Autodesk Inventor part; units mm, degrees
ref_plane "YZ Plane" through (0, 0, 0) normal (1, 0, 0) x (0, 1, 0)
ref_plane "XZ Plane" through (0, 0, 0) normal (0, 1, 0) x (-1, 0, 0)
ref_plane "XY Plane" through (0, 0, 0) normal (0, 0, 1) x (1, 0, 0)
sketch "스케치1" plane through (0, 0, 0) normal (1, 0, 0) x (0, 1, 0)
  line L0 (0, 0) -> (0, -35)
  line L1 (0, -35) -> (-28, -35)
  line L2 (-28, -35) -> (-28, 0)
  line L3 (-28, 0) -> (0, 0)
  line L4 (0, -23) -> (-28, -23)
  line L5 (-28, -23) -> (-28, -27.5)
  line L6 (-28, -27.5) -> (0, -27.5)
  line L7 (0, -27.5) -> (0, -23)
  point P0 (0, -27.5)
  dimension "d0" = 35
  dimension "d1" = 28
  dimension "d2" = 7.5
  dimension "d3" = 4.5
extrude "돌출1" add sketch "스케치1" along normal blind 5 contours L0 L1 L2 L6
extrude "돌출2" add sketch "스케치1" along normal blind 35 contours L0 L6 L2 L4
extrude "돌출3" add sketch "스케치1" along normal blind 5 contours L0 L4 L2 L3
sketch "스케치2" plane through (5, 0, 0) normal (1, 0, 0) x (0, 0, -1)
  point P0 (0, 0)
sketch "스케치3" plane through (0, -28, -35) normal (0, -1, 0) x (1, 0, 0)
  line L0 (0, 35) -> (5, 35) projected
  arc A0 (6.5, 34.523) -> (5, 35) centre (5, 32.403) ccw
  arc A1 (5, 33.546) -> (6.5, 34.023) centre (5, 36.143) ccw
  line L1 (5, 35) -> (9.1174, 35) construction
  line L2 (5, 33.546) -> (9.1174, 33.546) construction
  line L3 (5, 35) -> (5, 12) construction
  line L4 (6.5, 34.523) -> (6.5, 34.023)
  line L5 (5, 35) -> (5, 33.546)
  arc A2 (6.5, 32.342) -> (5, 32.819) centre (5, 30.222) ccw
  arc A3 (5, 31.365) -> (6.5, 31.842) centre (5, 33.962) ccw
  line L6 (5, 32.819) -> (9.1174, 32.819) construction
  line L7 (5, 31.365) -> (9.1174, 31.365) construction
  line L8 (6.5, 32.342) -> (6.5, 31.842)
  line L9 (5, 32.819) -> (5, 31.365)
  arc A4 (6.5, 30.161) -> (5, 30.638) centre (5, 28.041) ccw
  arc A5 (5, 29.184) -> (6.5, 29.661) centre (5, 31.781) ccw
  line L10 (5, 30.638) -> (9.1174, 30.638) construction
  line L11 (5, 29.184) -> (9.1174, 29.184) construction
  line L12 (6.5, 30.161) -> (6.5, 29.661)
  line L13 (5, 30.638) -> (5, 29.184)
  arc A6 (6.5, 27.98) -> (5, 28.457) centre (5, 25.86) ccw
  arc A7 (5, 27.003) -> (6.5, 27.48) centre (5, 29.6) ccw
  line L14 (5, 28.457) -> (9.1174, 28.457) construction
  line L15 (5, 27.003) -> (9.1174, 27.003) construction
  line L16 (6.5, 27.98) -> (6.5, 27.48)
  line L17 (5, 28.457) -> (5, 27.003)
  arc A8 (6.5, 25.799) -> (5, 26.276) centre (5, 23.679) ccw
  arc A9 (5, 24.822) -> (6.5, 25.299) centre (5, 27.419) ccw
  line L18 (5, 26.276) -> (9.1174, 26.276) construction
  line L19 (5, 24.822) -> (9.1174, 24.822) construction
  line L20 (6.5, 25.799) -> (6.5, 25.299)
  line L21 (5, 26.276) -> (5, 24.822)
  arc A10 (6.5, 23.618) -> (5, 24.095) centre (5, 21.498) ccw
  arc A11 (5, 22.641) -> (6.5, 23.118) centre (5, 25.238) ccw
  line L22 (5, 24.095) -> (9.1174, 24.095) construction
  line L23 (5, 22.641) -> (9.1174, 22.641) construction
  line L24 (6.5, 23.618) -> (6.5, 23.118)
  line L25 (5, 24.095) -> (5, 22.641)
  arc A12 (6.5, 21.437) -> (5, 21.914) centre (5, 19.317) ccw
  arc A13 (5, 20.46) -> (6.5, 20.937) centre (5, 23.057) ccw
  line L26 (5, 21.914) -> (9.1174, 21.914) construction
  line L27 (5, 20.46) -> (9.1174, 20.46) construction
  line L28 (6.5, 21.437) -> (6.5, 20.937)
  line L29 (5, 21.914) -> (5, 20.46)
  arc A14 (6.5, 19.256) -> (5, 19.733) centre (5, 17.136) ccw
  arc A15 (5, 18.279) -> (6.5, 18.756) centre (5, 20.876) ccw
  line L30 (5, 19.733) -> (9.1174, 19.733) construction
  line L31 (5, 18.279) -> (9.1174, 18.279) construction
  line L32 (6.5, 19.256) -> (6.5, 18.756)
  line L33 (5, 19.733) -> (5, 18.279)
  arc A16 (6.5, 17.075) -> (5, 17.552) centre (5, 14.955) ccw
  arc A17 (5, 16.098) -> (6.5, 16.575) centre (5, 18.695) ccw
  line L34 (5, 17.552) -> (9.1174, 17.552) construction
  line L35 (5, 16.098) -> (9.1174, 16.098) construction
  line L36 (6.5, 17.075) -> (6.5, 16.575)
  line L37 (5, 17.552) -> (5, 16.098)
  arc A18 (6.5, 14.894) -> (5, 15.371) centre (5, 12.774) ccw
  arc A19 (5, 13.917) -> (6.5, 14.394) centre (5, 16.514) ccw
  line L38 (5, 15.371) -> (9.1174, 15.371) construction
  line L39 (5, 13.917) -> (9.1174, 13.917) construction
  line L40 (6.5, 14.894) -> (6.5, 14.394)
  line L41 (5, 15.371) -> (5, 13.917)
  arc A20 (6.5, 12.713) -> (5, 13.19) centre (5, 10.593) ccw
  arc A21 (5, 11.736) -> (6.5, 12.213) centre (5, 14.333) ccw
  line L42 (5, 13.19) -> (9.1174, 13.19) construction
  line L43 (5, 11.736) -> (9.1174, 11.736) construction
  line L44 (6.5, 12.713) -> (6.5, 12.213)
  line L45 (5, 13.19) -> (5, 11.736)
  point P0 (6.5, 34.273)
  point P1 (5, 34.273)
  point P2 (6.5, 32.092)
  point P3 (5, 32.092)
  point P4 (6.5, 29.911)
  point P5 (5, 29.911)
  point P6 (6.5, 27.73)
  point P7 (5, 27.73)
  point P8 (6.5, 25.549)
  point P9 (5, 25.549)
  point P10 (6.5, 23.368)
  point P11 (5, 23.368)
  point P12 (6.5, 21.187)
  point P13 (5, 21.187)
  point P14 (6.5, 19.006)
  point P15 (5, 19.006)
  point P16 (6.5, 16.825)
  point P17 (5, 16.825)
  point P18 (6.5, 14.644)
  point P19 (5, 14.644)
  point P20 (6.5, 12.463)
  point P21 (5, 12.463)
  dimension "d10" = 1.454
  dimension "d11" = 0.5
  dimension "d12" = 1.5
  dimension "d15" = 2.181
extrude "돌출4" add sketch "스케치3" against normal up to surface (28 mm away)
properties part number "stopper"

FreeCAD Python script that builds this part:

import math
import FreeCAD as App
import Part
import Sketcher

V = App.Vector
Q = App.Units.Quantity

doc = App.newDocument("Part")
params = doc.addObject("Spreadsheet::Sheet", "Params")
for row, (alias, value) in enumerate([
    ("sketch1_width", "28 mm"),
    ("sketch1_height", "7.5 mm"),
    ("pad1_length", "5 mm"),
    ("sketch2_width", "28 mm"),
    ("sketch2_height", "4.5 mm"),
    ("pad2_length", "35 mm"),
    ("sketch3_width", "28 mm"),
    ("sketch3_height", "23 mm"),
    ("pad3_length", "5 mm"),
    ("sketch4_height", "0.5 mm"),
    ("pad4_length", "28 mm"),
], start=1):
    params.set(f"A{row}", alias)
    params.set(f"B{row}", "=" + value)
    params.setAlias(f"B{row}", alias)

body = doc.addObject("PartDesign::Body", "Body")

sketch1 = doc.addObject("Sketcher::SketchObject", "Sketch")
body.addObject(sketch1)
sketch1.AttachmentSupport = (doc.YZ_Plane, [""])
sketch1.MapMode = "FlatFace"
sketch1.addGeometry([
    Part.LineSegment(V(0, -35, 0), V(0, -27.5, 0)),
    Part.LineSegment(V(0, -27.5, 0), V(-28, -27.5, 0)),
    Part.LineSegment(V(-28, -27.5, 0), V(-28, -35, 0)),
    Part.LineSegment(V(-28, -35, 0), V(0, -35, 0)),
], False)
sketch1.addConstraint([
    Sketcher.Constraint("Coincident", 0, 2, 1, 1),
    Sketcher.Constraint("Coincident", 1, 2, 2, 1),
    Sketcher.Constraint("Coincident", 2, 2, 3, 1),
    Sketcher.Constraint("Coincident", 3, 2, 0, 1),
    Sketcher.Constraint("Vertical", 0),
    Sketcher.Constraint("Horizontal", 1),
    Sketcher.Constraint("Vertical", 2),
    Sketcher.Constraint("Horizontal", 3),
    Sketcher.Constraint("PointOnObject", 0, 2, -2),
    Sketcher.Constraint("DistanceX", 1, 2, 1, 1, Q("28 mm")),
    Sketcher.Constraint("DistanceY", 0, 1, 0, 2, Q("7.5 mm")),
    Sketcher.Constraint("DistanceY", 2, 2, -1, 1, Q("35 mm")),
])
sketch1.setExpression("Constraints[9]", "Params.sketch1_width")
sketch1.setExpression("Constraints[10]", "Params.sketch1_height")
pad1 = doc.addObject("PartDesign::Pad", "Pad")
body.addObject(pad1)
pad1.Profile = sketch1
pad1.setExpression("Length", "Params.pad1_length")

sketch2 = doc.addObject("Sketcher::SketchObject", "Sketch001")
body.addObject(sketch2)
sketch2.AttachmentSupport = (doc.YZ_Plane, [""])
sketch2.MapMode = "FlatFace"
sketch2.addGeometry([
    Part.LineSegment(V(0, -27.5, 0), V(0, -23, 0)),
    Part.LineSegment(V(0, -23, 0), V(-28, -23, 0)),
    Part.LineSegment(V(-28, -23, 0), V(-28, -27.5, 0)),
    Part.LineSegment(V(-28, -27.5, 0), V(0, -27.5, 0)),
], False)
sketch2.addConstraint([
    Sketcher.Constraint("Coincident", 0, 2, 1, 1),
    Sketcher.Constraint("Coincident", 1, 2, 2, 1),
    Sketcher.Constraint("Coincident", 2, 2, 3, 1),
    Sketcher.Constraint("Coincident", 3, 2, 0, 1),
    Sketcher.Constraint("Vertical", 0),
    Sketcher.Constraint("Horizontal", 1),
    Sketcher.Constraint("Vertical", 2),
    Sketcher.Constraint("Horizontal", 3),
    Sketcher.Constraint("PointOnObject", 0, 2, -2),
    Sketcher.Constraint("DistanceX", 1, 2, 1, 1, Q("28 mm")),
    Sketcher.Constraint("DistanceY", 0, 1, 0, 2, Q("4.5 mm")),
    Sketcher.Constraint("DistanceY", 0, 2, -1, 1, Q("23 mm")),
])
sketch2.setExpression("Constraints[9]", "Params.sketch2_width")
sketch2.setExpression("Constraints[10]", "Params.sketch2_height")
pad2 = doc.addObject("PartDesign::Pad", "Pad001")
body.addObject(pad2)
pad2.Profile = sketch2
pad2.setExpression("Length", "Params.pad2_length")

sketch3 = doc.addObject("Sketcher::SketchObject", "Sketch002")
body.addObject(sketch3)
sketch3.AttachmentSupport = (doc.YZ_Plane, [""])
sketch3.MapMode = "FlatFace"
sketch3.addGeometry([
    Part.LineSegment(V(0, -23, 0), V(0, 0, 0)),
    Part.LineSegment(V(0, 0, 0), V(-28, 0, 0)),
    Part.LineSegment(V(-28, 0, 0), V(-28, -23, 0)),
    Part.LineSegment(V(-28, -23, 0), V(0, -23, 0)),
], False)
sketch3.addConstraint([
    Sketcher.Constraint("Coincident", 0, 2, 1, 1),
    Sketcher.Constraint("Coincident", 1, 2, 2, 1),
    Sketcher.Constraint("Coincident", 2, 2, 3, 1),
    Sketcher.Constraint("Coincident", 3, 2, 0, 1),
    Sketcher.Constraint("Vertical", 0),
    Sketcher.Constraint("Horizontal", 1),
    Sketcher.Constraint("Vertical", 2),
    Sketcher.Constraint("Horizontal", 3),
    Sketcher.Constraint("Coincident", 0, 2, -1, 1),
    Sketcher.Constraint("DistanceX", 1, 2, 1, 1, Q("28 mm")),
    Sketcher.Constraint("DistanceY", 0, 1, 0, 2, Q("23 mm")),
])
sketch3.setExpression("Constraints[9]", "Params.sketch3_width")
sketch3.setExpression("Constraints[10]", "Params.sketch3_height")
pad3 = doc.addObject("PartDesign::Pad", "Pad002")
body.addObject(pad3)
pad3.Profile = sketch3
pad3.setExpression("Length", "Params.pad3_length")

sketch4 = doc.addObject("Sketcher::SketchObject", "Sketch003")
body.addObject(sketch4)
sketch4.AttachmentSupport = (doc.XZ_Plane, [""])
sketch4.MapMode = "FlatFace"
sketch4.AttachmentOffset = App.Placement(V(0, 0, 28), App.Rotation())
sketch4.addGeometry([
    Part.LineSegment(V(6.5, -0.977, 0), V(6.5, -0.477, 0)),
    Part.ArcOfCircle(Part.Circle(V(5, -2.597, 0), V(0, 0, 1), 2.596998), math.radians(54.718792), math.radians(90)),
    Part.LineSegment(V(5, 0, 0), V(5, -1.454, 0)),
    Part.ArcOfCircle(Part.Circle(V(5, 1.143, 0), V(0, 0, 1), 2.597), math.radians(-90), math.radians(-54.718792)),
    Part.LineSegment(V(6.5, -3.158, 0), V(6.5, -2.658, 0)),
    Part.ArcOfCircle(Part.Circle(V(5, -4.778, 0), V(0, 0, 1), 2.596998), math.radians(54.718792), math.radians(90)),
    Part.LineSegment(V(5, -2.181, 0), V(5, -3.635, 0)),
    Part.ArcOfCircle(Part.Circle(V(5, -1.038, 0), V(0, 0, 1), 2.597), math.radians(-90), math.radians(-54.718792)),
    Part.LineSegment(V(6.5, -5.339, 0), V(6.5, -4.839, 0)),
    Part.ArcOfCircle(Part.Circle(V(5, -6.959, 0), V(0, 0, 1), 2.596998), math.radians(54.718792), math.radians(90)),
    Part.LineSegment(V(5, -4.362, 0), V(5, -5.816, 0)),
    Part.ArcOfCircle(Part.Circle(V(5, -3.219, 0), V(0, 0, 1), 2.597), math.radians(-90), math.radians(-54.718792)),
    Part.LineSegment(V(6.5, -7.52, 0), V(6.5, -7.02, 0)),
    Part.ArcOfCircle(Part.Circle(V(5, -9.14, 0), V(0, 0, 1), 2.596998), math.radians(54.718792), math.radians(90)),
    Part.LineSegment(V(5, -6.543, 0), V(5, -7.997, 0)),
    Part.ArcOfCircle(Part.Circle(V(5, -5.4, 0), V(0, 0, 1), 2.597), math.radians(-90), math.radians(-54.718792)),
    Part.LineSegment(V(6.5, -9.701, 0), V(6.5, -9.201, 0)),
    Part.ArcOfCircle(Part.Circle(V(5, -11.321, 0), V(0, 0, 1), 2.596998), math.radians(54.718792), math.radians(90)),
    Part.LineSegment(V(5, -8.724, 0), V(5, -10.178, 0)),
    Part.ArcOfCircle(Part.Circle(V(5, -7.581, 0), V(0, 0, 1), 2.597), math.radians(-90), math.radians(-54.718792)),
    Part.LineSegment(V(6.5, -11.882, 0), V(6.5, -11.382, 0)),
    Part.ArcOfCircle(Part.Circle(V(5, -13.502, 0), V(0, 0, 1), 2.596998), math.radians(54.718792), math.radians(90)),
    Part.LineSegment(V(5, -10.905, 0), V(5, -12.359, 0)),
    Part.ArcOfCircle(Part.Circle(V(5, -9.762, 0), V(0, 0, 1), 2.597), math.radians(-90), math.radians(-54.718792)),
    Part.LineSegment(V(6.5, -14.063, 0), V(6.5, -13.563, 0)),
    Part.ArcOfCircle(Part.Circle(V(5, -15.683, 0), V(0, 0, 1), 2.596998), math.radians(54.718792), math.radians(90)),
    Part.LineSegment(V(5, -13.086, 0), V(5, -14.54, 0)),
    Part.ArcOfCircle(Part.Circle(V(5, -11.943, 0), V(0, 0, 1), 2.597), math.radians(-90), math.radians(-54.718792)),
    Part.LineSegment(V(6.5, -16.244, 0), V(6.5, -15.744, 0)),
    Part.ArcOfCircle(Part.Circle(V(5, -17.864, 0), V(0, 0, 1), 2.596998), math.radians(54.718792), math.radians(90)),
    Part.LineSegment(V(5, -15.267, 0), V(5, -16.721, 0)),
    Part.ArcOfCircle(Part.Circle(V(5, -14.124, 0), V(0, 0, 1), 2.597), math.radians(-90), math.radians(-54.718792)),
    Part.LineSegment(V(6.5, -18.425, 0), V(6.5, -17.925, 0)),
    Part.ArcOfCircle(Part.Circle(V(5, -20.045, 0), V(0, 0, 1), 2.596998), math.radians(54.718792), math.radians(90)),
    Part.LineSegment(V(5, -17.448, 0), V(5, -18.902, 0)),
    Part.ArcOfCircle(Part.Circle(V(5, -16.305, 0), V(0, 0, 1), 2.597), math.radians(-90), math.radians(-54.718792)),
    Part.LineSegment(V(6.5, -20.606, 0), V(6.5, -20.106, 0)),
    Part.ArcOfCircle(Part.Circle(V(5, -22.226, 0), V(0, 0, 1), 2.596998), math.radians(54.718792), math.radians(90)),
    Part.LineSegment(V(5, -19.629, 0), V(5, -21.083, 0)),
    Part.ArcOfCircle(Part.Circle(V(5, -18.486, 0), V(0, 0, 1), 2.597), math.radians(-90), math.radians(-54.718792)),
    Part.LineSegment(V(6.5, -22.787, 0), V(6.5, -22.287, 0)),
    Part.ArcOfCircle(Part.Circle(V(5, -24.407, 0), V(0, 0, 1), 2.596998), math.radians(54.718792), math.radians(90)),
    Part.LineSegment(V(5, -21.81, 0), V(5, -23.264, 0)),
    Part.ArcOfCircle(Part.Circle(V(5, -20.667, 0), V(0, 0, 1), 2.597), math.radians(-90), math.radians(-54.718792)),
], False)
sketch4.addConstraint([
    Sketcher.Constraint("Coincident", 0, 2, 1, 1),
    Sketcher.Constraint("Coincident", 1, 2, 2, 1),
    Sketcher.Constraint("Coincident", 2, 2, 3, 1),
    Sketcher.Constraint("Coincident", 3, 2, 0, 1),
    Sketcher.Constraint("Coincident", 4, 2, 5, 1),
    Sketcher.Constraint("Coincident", 5, 2, 6, 1),
    Sketcher.Constraint("Coincident", 6, 2, 7, 1),
    Sketcher.Constraint("Coincident", 7, 2, 4, 1),
    Sketcher.Constraint("Coincident", 8, 2, 9, 1),
    Sketcher.Constraint("Coincident", 9, 2, 10, 1),
    Sketcher.Constraint("Coincident", 10, 2, 11, 1),
    Sketcher.Constraint("Coincident", 11, 2, 8, 1),
    Sketcher.Constraint("Coincident", 12, 2, 13, 1),
    Sketcher.Constraint("Coincident", 13, 2, 14, 1),
    Sketcher.Constraint("Coincident", 14, 2, 15, 1),
    Sketcher.Constraint("Coincident", 15, 2, 12, 1),
    Sketcher.Constraint("Coincident", 16, 2, 17, 1),
    Sketcher.Constraint("Coincident", 17, 2, 18, 1),
    Sketcher.Constraint("Coincident", 18, 2, 19, 1),
    Sketcher.Constraint("Coincident", 19, 2, 16, 1),
    Sketcher.Constraint("Coincident", 20, 2, 21, 1),
    Sketcher.Constraint("Coincident", 21, 2, 22, 1),
    Sketcher.Constraint("Coincident", 22, 2, 23, 1),
    Sketcher.Constraint("Coincident", 23, 2, 20, 1),
    Sketcher.Constraint("Coincident", 24, 2, 25, 1),
    Sketcher.Constraint("Coincident", 25, 2, 26, 1),
    Sketcher.Constraint("Coincident", 26, 2, 27, 1),
    Sketcher.Constraint("Coincident", 27, 2, 24, 1),
    Sketcher.Constraint("Coincident", 28, 2, 29, 1),
    Sketcher.Constraint("Coincident", 29, 2, 30, 1),
    Sketcher.Constraint("Coincident", 30, 2, 31, 1),
    Sketcher.Constraint("Coincident", 31, 2, 28, 1),
    Sketcher.Constraint("Coincident", 32, 2, 33, 1),
    Sketcher.Constraint("Coincident", 33, 2, 34, 1),
    Sketcher.Constraint("Coincident", 34, 2, 35, 1),
    Sketcher.Constraint("Coincident", 35, 2, 32, 1),
    Sketcher.Constraint("Coincident", 36, 2, 37, 1),
    Sketcher.Constraint("Coincident", 37, 2, 38, 1),
    Sketcher.Constraint("Coincident", 38, 2, 39, 1),
    Sketcher.Constraint("Coincident", 39, 2, 36, 1),
    Sketcher.Constraint("Coincident", 40, 2, 41, 1),
    Sketcher.Constraint("Coincident", 41, 2, 42, 1),
    Sketcher.Constraint("Coincident", 42, 2, 43, 1),
    Sketcher.Constraint("Coincident", 43, 2, 40, 1),
    Sketcher.Constraint("Vertical", 0),
    Sketcher.Constraint("Vertical", 2),
    Sketcher.Constraint("Vertical", 4),
    Sketcher.Constraint("Vertical", 6),
    Sketcher.Constraint("Vertical", 8),
    Sketcher.Constraint("Vertical", 10),
    Sketcher.Constraint("Vertical", 12),
    Sketcher.Constraint("Vertical", 14),
    Sketcher.Constraint("Vertical", 16),
    Sketcher.Constraint("Vertical", 18),
    Sketcher.Constraint("Vertical", 20),
    Sketcher.Constraint("Vertical", 22),
    Sketcher.Constraint("Vertical", 24),
    Sketcher.Constraint("Vertical", 26),
    Sketcher.Constraint("Vertical", 28),
    Sketcher.Constraint("Vertical", 30),
    Sketcher.Constraint("Vertical", 32),
    Sketcher.Constraint("Vertical", 34),
    Sketcher.Constraint("Vertical", 36),
    Sketcher.Constraint("Vertical", 38),
    Sketcher.Constraint("Vertical", 40),
    Sketcher.Constraint("Vertical", 42),
    Sketcher.Constraint("Equal", 1, 3),
    Sketcher.Constraint("Equal", 3, 5),
    Sketcher.Constraint("Equal", 5, 7),
    Sketcher.Constraint("Equal", 7, 9),
    Sketcher.Constraint("Equal", 9, 11),
    Sketcher.Constraint("Equal", 11, 13),
    Sketcher.Constraint("Equal", 13, 15),
    Sketcher.Constraint("Equal", 15, 17),
    Sketcher.Constraint("Equal", 17, 19),
    Sketcher.Constraint("Equal", 19, 21),
    Sketcher.Constraint("Equal", 21, 23),
    Sketcher.Constraint("Equal", 23, 25),
    Sketcher.Constraint("Equal", 25, 27),
    Sketcher.Constraint("Equal", 27, 29),
    Sketcher.Constraint("Equal", 29, 31),
    Sketcher.Constraint("Equal", 31, 33),
    Sketcher.Constraint("Equal", 33, 35),
    Sketcher.Constraint("Equal", 35, 37),
    Sketcher.Constraint("Equal", 37, 39),
    Sketcher.Constraint("Equal", 39, 41),
    Sketcher.Constraint("Equal", 41, 43),
    Sketcher.Constraint("PointOnObject", 1, 2, -1),
    Sketcher.Constraint("Vertical", 1, 3, 3, 3),
    Sketcher.Constraint("Vertical", 3, 3, 5, 3),
    Sketcher.Constraint("Vertical", 5, 3, 7, 3),
    Sketcher.Constraint("Vertical", 7, 3, 9, 3),
    Sketcher.Constraint("Vertical", 9, 3, 11, 3),
    Sketcher.Constraint("Vertical", 11, 3, 13, 3),
    Sketcher.Constraint("Vertical", 13, 3, 15, 3),
    Sketcher.Constraint("Vertical", 15, 3, 17, 3),
    Sketcher.Constraint("Vertical", 17, 3, 19, 3),
    Sketcher.Constraint("Vertical", 19, 3, 21, 3),
    Sketcher.Constraint("Vertical", 21, 3, 23, 3),
    Sketcher.Constraint("Vertical", 23, 3, 25, 3),
    Sketcher.Constraint("Vertical", 25, 3, 27, 3),
    Sketcher.Constraint("Vertical", 27, 3, 29, 3),
    Sketcher.Constraint("Vertical", 29, 3, 31, 3),
    Sketcher.Constraint("Vertical", 31, 3, 33, 3),
    Sketcher.Constraint("Vertical", 33, 3, 35, 3),
    Sketcher.Constraint("Vertical", 35, 3, 37, 3),
    Sketcher.Constraint("Vertical", 37, 3, 39, 3),
    Sketcher.Constraint("Vertical", 39, 3, 41, 3),
    Sketcher.Constraint("Vertical", 41, 3, 43, 3),
    Sketcher.Constraint("Vertical", 43, 3, 1, 2),
    Sketcher.Constraint("Vertical", 3, 2, 4, 2),
    Sketcher.Constraint("Vertical", 2, 2, 5, 2),
    Sketcher.Constraint("Vertical", 7, 2, 8, 2),
    Sketcher.Constraint("Vertical", 6, 2, 9, 2),
    Sketcher.Constraint("Vertical", 11, 2, 12, 2),
    Sketcher.Constraint("Vertical", 10, 2, 13, 2),
    Sketcher.Constraint("Vertical", 15, 2, 16, 2),
    Sketcher.Constraint("Vertical", 14, 2, 17, 2),
    Sketcher.Constraint("Vertical", 19, 2, 20, 2),
    Sketcher.Constraint("Vertical", 18, 2, 21, 2),
    Sketcher.Constraint("Vertical", 23, 2, 24, 2),
    Sketcher.Constraint("Vertical", 22, 2, 25, 2),
    Sketcher.Constraint("Vertical", 27, 2, 28, 2),
    Sketcher.Constraint("Vertical", 26, 2, 29, 2),
    Sketcher.Constraint("Vertical", 31, 2, 32, 2),
    Sketcher.Constraint("Vertical", 30, 2, 33, 2),
    Sketcher.Constraint("Vertical", 35, 2, 36, 2),
    Sketcher.Constraint("Vertical", 34, 2, 37, 2),
    Sketcher.Constraint("Vertical", 39, 2, 40, 2),
    Sketcher.Constraint("Vertical", 38, 2, 41, 2),
    Sketcher.Constraint("Equal", 0, 4),
    Sketcher.Constraint("Equal", 4, 8),
    Sketcher.Constraint("Equal", 8, 12),
    Sketcher.Constraint("Equal", 12, 16),
    Sketcher.Constraint("Equal", 16, 20),
    Sketcher.Constraint("Equal", 20, 24),
    Sketcher.Constraint("Equal", 24, 28),
    Sketcher.Constraint("Equal", 28, 32),
    Sketcher.Constraint("Equal", 32, 36),
    Sketcher.Constraint("Equal", 36, 40),
    Sketcher.Constraint("DistanceY", 0, 1, 0, 2, Q("0.5 mm")),
    Sketcher.Constraint("DistanceY", 2, 2, 2, 1, Q("1.454 mm")),
    Sketcher.Constraint("DistanceX", -1, 1, 1, 3, Q("5 mm")),
    Sketcher.Constraint("DistanceY", 5, 2, -1, 1, Q("2.181 mm")),
    Sketcher.Constraint("Radius", 1, Q("2.597 mm")),
    Sketcher.Constraint("DistanceY", 15, 3, -1, 1, Q("5.4 mm")),
    Sketcher.Constraint("DistanceY", 26, 2, -1, 1, Q("14.54 mm")),
    Sketcher.Constraint("DistanceY", 41, 2, -1, 1, Q("21.81 mm")),
    Sketcher.Constraint("DistanceY", 9, 3, -1, 1, Q("6.959 mm")),
    Sketcher.Constraint("DistanceY", 17, 3, -1, 1, Q("11.321 mm")),
    Sketcher.Constraint("DistanceY", 21, 3, -1, 1, Q("13.502 mm")),
    Sketcher.Constraint("DistanceY", 29, 3, -1, 1, Q("17.864 mm")),
    Sketcher.Constraint("DistanceY", 33, 3, -1, 1, Q("20.045 mm")),
    Sketcher.Constraint("DistanceY", 37, 3, -1, 1, Q("22.226 mm")),
])
sketch4.setExpression("Constraints[140]", "Params.sketch4_height")
pad4 = doc.addObject("PartDesign::Pad", "Pad003")
body.addObject(pad4)
pad4.Profile = sketch4
pad4.setExpression("Length", "Params.pad4_length")
pad4.Reversed = True

doc.recompute()
